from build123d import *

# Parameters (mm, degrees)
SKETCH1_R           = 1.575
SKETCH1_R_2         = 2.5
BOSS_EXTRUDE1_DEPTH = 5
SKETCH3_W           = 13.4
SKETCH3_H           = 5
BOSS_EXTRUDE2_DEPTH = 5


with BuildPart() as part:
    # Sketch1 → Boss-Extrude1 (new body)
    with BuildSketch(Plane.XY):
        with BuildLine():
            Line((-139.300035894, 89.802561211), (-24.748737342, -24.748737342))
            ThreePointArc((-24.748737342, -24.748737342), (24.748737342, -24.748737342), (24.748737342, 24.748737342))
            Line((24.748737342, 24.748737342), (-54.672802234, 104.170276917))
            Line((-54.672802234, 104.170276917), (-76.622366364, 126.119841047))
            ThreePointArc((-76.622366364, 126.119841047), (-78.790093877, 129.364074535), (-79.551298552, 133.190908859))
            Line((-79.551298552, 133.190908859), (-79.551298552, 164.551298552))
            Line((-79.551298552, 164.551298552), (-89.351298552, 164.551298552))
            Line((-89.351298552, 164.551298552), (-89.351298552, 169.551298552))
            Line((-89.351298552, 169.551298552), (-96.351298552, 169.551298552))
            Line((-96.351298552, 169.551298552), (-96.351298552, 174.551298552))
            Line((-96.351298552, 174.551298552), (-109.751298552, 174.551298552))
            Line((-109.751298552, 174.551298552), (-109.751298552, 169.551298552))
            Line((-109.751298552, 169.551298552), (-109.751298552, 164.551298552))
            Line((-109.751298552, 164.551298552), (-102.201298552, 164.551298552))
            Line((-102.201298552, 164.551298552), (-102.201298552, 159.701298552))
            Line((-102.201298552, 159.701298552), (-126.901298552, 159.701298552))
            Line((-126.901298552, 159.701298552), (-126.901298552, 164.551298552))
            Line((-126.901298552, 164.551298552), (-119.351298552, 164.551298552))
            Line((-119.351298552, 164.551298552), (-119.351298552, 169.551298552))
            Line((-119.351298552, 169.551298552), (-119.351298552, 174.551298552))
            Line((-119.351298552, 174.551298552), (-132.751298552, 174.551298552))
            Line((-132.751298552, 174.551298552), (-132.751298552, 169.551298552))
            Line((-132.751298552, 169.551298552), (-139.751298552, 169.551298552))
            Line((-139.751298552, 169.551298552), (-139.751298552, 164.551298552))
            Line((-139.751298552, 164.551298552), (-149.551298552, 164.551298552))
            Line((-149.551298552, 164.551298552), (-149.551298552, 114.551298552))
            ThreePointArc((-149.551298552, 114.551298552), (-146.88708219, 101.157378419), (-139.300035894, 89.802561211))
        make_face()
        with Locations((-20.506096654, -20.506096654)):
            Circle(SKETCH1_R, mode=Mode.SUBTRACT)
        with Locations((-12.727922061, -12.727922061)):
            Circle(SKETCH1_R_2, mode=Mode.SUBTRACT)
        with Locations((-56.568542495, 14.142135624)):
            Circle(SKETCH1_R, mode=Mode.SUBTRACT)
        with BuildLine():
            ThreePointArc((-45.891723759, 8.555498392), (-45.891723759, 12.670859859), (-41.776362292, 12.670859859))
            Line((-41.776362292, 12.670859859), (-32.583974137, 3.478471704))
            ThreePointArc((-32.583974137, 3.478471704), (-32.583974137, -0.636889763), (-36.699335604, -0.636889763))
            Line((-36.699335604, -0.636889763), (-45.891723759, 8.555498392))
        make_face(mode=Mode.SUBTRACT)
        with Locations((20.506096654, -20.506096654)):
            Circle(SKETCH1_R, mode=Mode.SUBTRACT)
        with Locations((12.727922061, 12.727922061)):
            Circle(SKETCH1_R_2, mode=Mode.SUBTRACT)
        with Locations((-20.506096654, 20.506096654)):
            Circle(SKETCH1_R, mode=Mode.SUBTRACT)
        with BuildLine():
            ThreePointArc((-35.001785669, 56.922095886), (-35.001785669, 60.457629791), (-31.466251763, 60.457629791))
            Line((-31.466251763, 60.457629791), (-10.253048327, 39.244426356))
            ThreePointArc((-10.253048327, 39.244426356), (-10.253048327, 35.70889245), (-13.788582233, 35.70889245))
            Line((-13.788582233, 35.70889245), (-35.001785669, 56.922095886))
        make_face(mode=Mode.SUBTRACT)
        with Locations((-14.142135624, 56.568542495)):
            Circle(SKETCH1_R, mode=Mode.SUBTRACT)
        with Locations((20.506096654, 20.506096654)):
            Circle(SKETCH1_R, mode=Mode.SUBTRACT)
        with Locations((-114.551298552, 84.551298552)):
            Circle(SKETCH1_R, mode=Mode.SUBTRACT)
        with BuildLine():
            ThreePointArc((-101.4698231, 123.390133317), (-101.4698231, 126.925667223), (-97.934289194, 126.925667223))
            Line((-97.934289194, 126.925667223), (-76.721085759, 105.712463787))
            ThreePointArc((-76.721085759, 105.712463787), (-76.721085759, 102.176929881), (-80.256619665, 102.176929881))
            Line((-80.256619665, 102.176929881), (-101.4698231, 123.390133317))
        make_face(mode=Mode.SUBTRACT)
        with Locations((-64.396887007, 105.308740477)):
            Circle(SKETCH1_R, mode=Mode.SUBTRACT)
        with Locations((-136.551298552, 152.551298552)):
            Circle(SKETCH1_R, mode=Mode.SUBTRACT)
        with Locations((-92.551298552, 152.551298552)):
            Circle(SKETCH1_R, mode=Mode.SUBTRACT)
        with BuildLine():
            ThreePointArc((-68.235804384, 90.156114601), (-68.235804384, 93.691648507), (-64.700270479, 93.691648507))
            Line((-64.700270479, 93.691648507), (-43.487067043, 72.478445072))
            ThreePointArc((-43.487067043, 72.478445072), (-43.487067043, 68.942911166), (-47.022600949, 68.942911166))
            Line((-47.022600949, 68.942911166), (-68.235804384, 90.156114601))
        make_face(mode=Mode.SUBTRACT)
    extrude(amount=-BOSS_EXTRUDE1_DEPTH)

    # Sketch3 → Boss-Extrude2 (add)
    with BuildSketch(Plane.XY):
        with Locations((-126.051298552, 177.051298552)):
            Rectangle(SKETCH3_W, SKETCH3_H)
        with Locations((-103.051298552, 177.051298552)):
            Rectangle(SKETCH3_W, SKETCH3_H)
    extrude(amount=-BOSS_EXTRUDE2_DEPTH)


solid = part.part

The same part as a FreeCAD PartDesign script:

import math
import FreeCAD as App
import Part
import Sketcher
from FreeCAD import Vector
Q = App.Units.Quantity


def add_polygon(sketch, points):
    """Adds a closed chain of lines whose ends are joined by coincident constraints."""
    first, n = sketch.GeometryCount, len(points)
    for a, b in zip(points, points[1:] + points[:1]):
        sketch.addGeometry(Part.LineSegment(App.Vector(*a, 0), App.Vector(*b, 0)), False)
    for i in range(n):
        sketch.addConstraint(Sketcher.Constraint("Coincident", first + i, 2, first + (i + 1) % n, 1))

doc = App.newDocument("Part")
body = doc.addObject("PartDesign::Body", "Body")

# Sketch on XY plane
sketch1 = body.newObject("Sketcher::SketchObject", "Sketch")
sketch1.AttachmentSupport = (doc.getObject("XY_Plane"), [""])
sketch1.MapMode = "FlatFace"
sketch1.addGeometry(Part.LineSegment(Vector(-139.300036, 89.802561, 0), Vector(-24.748737, -24.748737, 0)), False)
sketch1.addGeometry(Part.ArcOfCircle(Part.Circle(Vector(0, 0, 0), Vector(0, 0, 1), 35), math.radians(-135), math.radians(45)), False)
sketch1.addGeometry(Part.LineSegment(Vector(24.748737, 24.748737, 0), Vector(-54.672802, 104.170277, 0)), False)
sketch1.addGeometry(Part.LineSegment(Vector(-54.672802, 104.170277, 0), Vector(-76.622366, 126.119841, 0)), False)
sketch1.addGeometry(Part.ArcOfCircle(Part.Circle(Vector(-69.551299, 133.190909, 0), Vector(0, 0, 1), 10), math.radians(180), math.radians(225)), False)
sketch1.addGeometry(Part.LineSegment(Vector(-79.551299, 133.190909, 0), Vector(-79.551299, 164.551299, 0)), False)
sketch1.addGeometry(Part.LineSegment(Vector(-79.551299, 164.551299, 0), Vector(-89.351299, 164.551299, 0)), False)
sketch1.addGeometry(Part.LineSegment(Vector(-89.351299, 164.551299, 0), Vector(-89.351299, 169.551299, 0)), False)
sketch1.addGeometry(Part.LineSegment(Vector(-89.351299, 169.551299, 0), Vector(-96.351299, 169.551299, 0)), False)
sketch1.addGeometry(Part.LineSegment(Vector(-96.351299, 169.551299, 0), Vector(-96.351299, 174.551299, 0)), False)
sketch1.addGeometry(Part.LineSegment(Vector(-96.351299, 174.551299, 0), Vector(-109.751299, 174.551299, 0)), False)
sketch1.addGeometry(Part.LineSegment(Vector(-109.751299, 174.551299, 0), Vector(-109.751299, 164.551299, 0)), False)
sketch1.addGeometry(Part.LineSegment(Vector(-109.751299, 164.551299, 0), Vector(-102.201299, 164.551299, 0)), False)
sketch1.addGeometry(Part.LineSegment(Vector(-102.201299, 164.551299, 0), Vector(-102.201299, 159.701299, 0)), False)
sketch1.addGeometry(Part.LineSegment(Vector(-102.201299, 159.701299, 0), Vector(-126.901299, 159.701299, 0)), False)
sketch1.addGeometry(Part.LineSegment(Vector(-126.901299, 159.701299, 0), Vector(-126.901299, 164.551299, 0)), False)
sketch1.addGeometry(Part.LineSegment(Vector(-126.901299, 164.551299, 0), Vector(-119.351299, 164.551299, 0)), False)
sketch1.addGeometry(Part.LineSegment(Vector(-119.351299, 164.551299, 0), Vector(-119.351299, 174.551299, 0)), False)
sketch1.addGeometry(Part.LineSegment(Vector(-119.351299, 174.551299, 0), Vector(-132.751299, 174.551299, 0)), False)
sketch1.addGeometry(Part.LineSegment(Vector(-132.751299, 174.551299, 0), Vector(-132.751299, 169.551299, 0)), False)
sketch1.addGeometry(Part.LineSegment(Vector(-132.751299, 169.551299, 0), Vector(-139.751299, 169.551299, 0)), False)
sketch1.addGeometry(Part.LineSegment(Vector(-139.751299, 169.551299, 0), Vector(-139.751299, 164.551299, 0)), False)
sketch1.addGeometry(Part.LineSegment(Vector(-139.751299, 164.551299, 0), Vector(-149.551299, 164.551299, 0)), False)
sketch1.addGeometry(Part.LineSegment(Vector(-149.551299, 164.551299, 0), Vector(-149.551299, 114.551299, 0)), False)
sketch1.addGeometry(Part.ArcOfCircle(Part.Circle(Vector(-114.551299, 114.551299, 0), Vector(0, 0, 1), 35), math.radians(180), math.radians(225)), False)
sketch1.addGeometry(Part.Circle(Vector(-20.506097, -20.506097, 0), Vector(0, 0, 1), 1.575), False)
sketch1.addGeometry(Part.LineSegment(Vector(-36.699336, -0.63689, 0), Vector(-45.891724, 8.555498, 0)), False)
sketch1.addGeometry(Part.ArcOfCircle(Part.Circle(Vector(-43.834043, 10.613179, 0), Vector(0, 0, 1), 2.91), math.radians(45), math.radians(225)), False)
sketch1.addGeometry(Part.LineSegment(Vector(-41.776362, 12.67086, 0), Vector(-32.583974, 3.478472, 0)), False)
sketch1.addGeometry(Part.ArcOfCircle(Part.Circle(Vector(-34.641655, 1.420791, 0), Vector(0, 0, 1), 2.91), math.radians(-135), math.radians(45)), False)
sketch1.addGeometry(Part.Circle(Vector(-56.568542, 14.142136, 0), Vector(0, 0, 1), 1.575), False)
sketch1.addGeometry(Part.Circle(Vector(-20.506097, 20.506097, 0), Vector(0, 0, 1), 1.575), False)
sketch1.addGeometry(Part.Circle(Vector(-12.727922, -12.727922, 0), Vector(0, 0, 1), 2.5), False)
sketch1.addGeometry(Part.Circle(Vector(20.506097, -20.506097, 0), Vector(0, 0, 1), 1.575), False)
sketch1.addGeometry(Part.Circle(Vector(12.727922, 12.727922, 0), Vector(0, 0, 1), 2.5), False)
sketch1.addGeometry(Part.Circle(Vector(20.506097, 20.506097, 0), Vector(0, 0, 1), 1.575), False)
sketch1.addGeometry(Part.LineSegment(Vector(-13.788582, 35.708892, 0), Vector(-35.001786, 56.922096, 0)), False)
sketch1.addGeometry(Part.ArcOfCircle(Part.Circle(Vector(-33.234019, 58.689863, 0), Vector(0, 0, 1), 2.5), math.radians(45), math.radians(225)), False)
sketch1.addGeometry(Part.LineSegment(Vector(-31.466252, 60.45763, 0), Vector(-10.253048, 39.244426, 0)), False)
sketch1.addGeometry(Part.ArcOfCircle(Part.Circle(Vector(-12.020815, 37.476659, 0), Vector(0, 0, 1), 2.5), math.radians(-135), math.radians(45)), False)
sketch1.addGeometry(Part.Circle(Vector(-14.142136, 56.568542, 0), Vector(0, 0, 1), 1.575), False)
sketch1.addGeometry(Part.Circle(Vector(-114.551299, 84.551299, 0), Vector(0, 0, 1), 1.575), False)
sketch1.addGeometry(Part.Circle(Vector(-64.396887, 105.30874, 0), Vector(0, 0, 1), 1.575), False)
sketch1.addGeometry(Part.Circle(Vector(-136.551299, 152.551299, 0), Vector(0, 0, 1), 1.575), False)
sketch1.addGeometry(Part.LineSegment(Vector(-80.25662, 102.17693, 0), Vector(-101.469823, 123.390133, 0)), False)
sketch1.addGeometry(Part.ArcOfCircle(Part.Circle(Vector(-99.702056, 125.1579, 0), Vector(0, 0, 1), 2.5), math.radians(45), math.radians(225)), False)
sketch1.addGeometry(Part.LineSegment(Vector(-97.934289, 126.925667, 0), Vector(-76.721086, 105.712464, 0)), False)
sketch1.addGeometry(Part.ArcOfCircle(Part.Circle(Vector(-78.488853, 103.944697, 0), Vector(0, 0, 1), 2.5), math.radians(-135), math.radians(45)), False)
sketch1.addGeometry(Part.Circle(Vector(-92.551299, 152.551299, 0), Vector(0, 0, 1), 1.575), False)
sketch1.addGeometry(Part.LineSegment(Vector(-47.022601, 68.942911, 0), Vector(-68.235804, 90.156115, 0)), False)
sketch1.addGeometry(Part.ArcOfCircle(Part.Circle(Vector(-66.468037, 91.923882, 0), Vector(0, 0, 1), 2.5), math.radians(45), math.radians(225)), False)
sketch1.addGeometry(Part.LineSegment(Vector(-64.70027, 93.691649, 0), Vector(-43.487067, 72.478445, 0)), False)
sketch1.addGeometry(Part.ArcOfCircle(Part.Circle(Vector(-45.254834, 70.710678, 0), Vector(0, 0, 1), 2.5), math.radians(-135), math.radians(45)), False)
sketch1.addConstraint(Sketcher.Constraint("Tangent", 0, 2, 1, 1))
sketch1.addConstraint(Sketcher.Constraint("Tangent", 1, 2, 2, 1))
sketch1.addConstraint(Sketcher.Constraint("Coincident", 2, 2, 3, 1))
sketch1.addConstraint(Sketcher.Constraint("Tangent", 3, 2, 4, 2))
sketch1.addConstraint(Sketcher.Constraint("Tangent", 4, 1, 5, 1))
sketch1.addConstraint(Sketcher.Constraint("Coincident", 5, 2, 6, 1))
sketch1.addConstraint(Sketcher.Constraint("Coincident", 6, 2, 7, 1))
sketch1.addConstraint(Sketcher.Constraint("Coincident", 7, 2, 8, 1))
sketch1.addConstraint(Sketcher.Constraint("Coincident", 8, 2, 9, 1))
sketch1.addConstraint(Sketcher.Constraint("Coincident", 9, 2, 10, 1))
sketch1.addConstraint(Sketcher.Constraint("Coincident", 10, 2, 11, 1))
sketch1.addConstraint(Sketcher.Constraint("Coincident", 11, 2, 12, 1))
sketch1.addConstraint(Sketcher.Constraint("Coincident", 12, 2, 13, 1))
sketch1.addConstraint(Sketcher.Constraint("Coincident", 13, 2, 14, 1))
sketch1.addConstraint(Sketcher.Constraint("Coincident", 14, 2, 15, 1))
sketch1.addConstraint(Sketcher.Constraint("Coincident", 15, 2, 16, 1))
sketch1.addConstraint(Sketcher.Constraint("Coincident", 16, 2, 17, 1))
sketch1.addConstraint(Sketcher.Constraint("Coincident", 17, 2, 18, 1))
sketch1.addConstraint(Sketcher.Constraint("Coincident", 18, 2, 19, 1))
sketch1.addConstraint(Sketcher.Constraint("Coincident", 19, 2, 20, 1))
sketch1.addConstraint(Sketcher.Constraint("Coincident", 20, 2, 21, 1))
sketch1.addConstraint(Sketcher.Constraint("Coincident", 21, 2, 22, 1))
sketch1.addConstraint(Sketcher.Constraint("Coincident", 22, 2, 23, 1))
sketch1.addConstraint(Sketcher.Constraint("Tangent", 23, 2, 24, 1))
sketch1.addConstraint(Sketcher.Constraint("Tangent", 24, 2, 0, 1))
sketch1.addConstraint(Sketcher.Constraint("Tangent", 26, 2, 27, 2))
sketch1.addConstraint(Sketcher.Constraint("Tangent", 27, 1, 28, 1))
sketch1.addConstraint(Sketcher.Constraint("Tangent", 28, 2, 29, 2))
sketch1.addConstraint(Sketcher.Constraint("Tangent", 29, 1, 26, 1))
sketch1.addConstraint(Sketcher.Constraint("Tangent", 36, 2, 37, 2))
sketch1.addConstraint(Sketcher.Constraint("Tangent", 37, 1, 38, 1))
sketch1.addConstraint(Sketcher.Constraint("Tangent", 38, 2, 39, 2))
sketch1.addConstraint(Sketcher.Constraint("Tangent", 39, 1, 36, 1))
sketch1.addConstraint(Sketcher.Constraint("Tangent", 44, 2, 45, 2))
sketch1.addConstraint(Sketcher.Constraint("Tangent", 45, 1, 46, 1))
sketch1.addConstraint(Sketcher.Constraint("Tangent", 46, 2, 47, 2))
sketch1.addConstraint(Sketcher.Constraint("Tangent", 47, 1, 44, 1))
sketch1.addConstraint(Sketcher.Constraint("Tangent", 49, 2, 50, 2))
sketch1.addConstraint(Sketcher.Constraint("Tangent", 50, 1, 51, 1))
sketch1.addConstraint(Sketcher.Constraint("Tangent", 51, 2, 52, 2))
sketch1.addConstraint(Sketcher.Constraint("Tangent", 52, 1, 49, 1))
sketch1.addConstraint(Sketcher.Constraint("Vertical", 5))
sketch1.addConstraint(Sketcher.Constraint("Horizontal", 6))
sketch1.addConstraint(Sketcher.Constraint("Vertical", 7))
sketch1.addConstraint(Sketcher.Constraint("Horizontal", 8))
sketch1.addConstraint(Sketcher.Constraint("Vertical", 9))
sketch1.addConstraint(Sketcher.Constraint("Horizontal", 10))
sketch1.addConstraint(Sketcher.Constraint("Vertical", 11))
sketch1.addConstraint(Sketcher.Constraint("Horizontal", 12))
sketch1.addConstraint(Sketcher.Constraint("Vertical", 13))
sketch1.addConstraint(Sketcher.Constraint("Horizontal", 14))
sketch1.addConstraint(Sketcher.Constraint("Vertical", 15))
sketch1.addConstraint(Sketcher.Constraint("Horizontal", 16))
sketch1.addConstraint(Sketcher.Constraint("Vertical", 17))
sketch1.addConstraint(Sketcher.Constraint("Horizontal", 18))
sketch1.addConstraint(Sketcher.Constraint("Vertical", 19))
sketch1.addConstraint(Sketcher.Constraint("Horizontal", 20))
sketch1.addConstraint(Sketcher.Constraint("Vertical", 21))
sketch1.addConstraint(Sketcher.Constraint("Horizontal", 22))
sketch1.addConstraint(Sketcher.Constraint("Vertical", 23))
sketch1.addConstraint(Sketcher.Constraint("Coincident", 1, 3, -1, 1))
sketch1.addConstraint(Sketcher.Constraint("Equal", 1, 24))
sketch1.addConstraint(Sketcher.Constraint("Equal", 27, 29))
sketch1.addConstraint(Sketcher.Constraint("Equal", 25, 30))
sketch1.addConstraint(Sketcher.Constraint("Equal", 30, 31))
sketch1.addConstraint(Sketcher.Constraint("Equal", 31, 33))
sketch1.addConstraint(Sketcher.Constraint("Equal", 32, 34))
sketch1.addConstraint(Sketcher.Constraint("Equal", 33, 35))
sketch1.addConstraint(Sketcher.Constraint("Equal", 34, 37))
sketch1.addConstraint(Sketcher.Constraint("Equal", 37, 39))
sketch1.addConstraint(Sketcher.Constraint("Equal", 35, 40))
sketch1.addConstraint(Sketcher.Constraint("Equal", 40, 41))
sketch1.addConstraint(Sketcher.Constraint("Equal", 41, 42))
sketch1.addConstraint(Sketcher.Constraint("Equal", 42, 43))
sketch1.addConstraint(Sketcher.Constraint("Equal", 39, 45))
sketch1.addConstraint(Sketcher.Constraint("Equal", 45, 47))
sketch1.addConstraint(Sketcher.Constraint("Equal", 43, 48))
sketch1.addConstraint(Sketcher.Constraint("Equal", 47, 50))
sketch1.addConstraint(Sketcher.Constraint("Equal", 50, 52))
sketch1.addConstraint(Sketcher.Constraint("Symmetric", 31, 3, 33, 3, -1, 1))
sketch1.addConstraint(Sketcher.Constraint("Symmetric", 32, 3, 34, 3, -1, 1))
sketch1.addConstraint(Sketcher.Constraint("Symmetric", 25, 3, 35, 3, -1, 1))
sketch1.addConstraint(Sketcher.Constraint("Symmetric", 25, 3, 33, 3, -2))
sketch1.addConstraint(Sketcher.Constraint("Parallel", 0, 2))
sketch1.addConstraint(Sketcher.Constraint("Parallel", 2, 3))
sketch1.addConstraint(Sketcher.Constraint("Parallel", 3, 26))
sketch1.addConstraint(Sketcher.Constraint("Parallel", 28, 36))
sketch1.addConstraint(Sketcher.Constraint("Parallel", 38, 44))
sketch1.addConstraint(Sketcher.Constraint("Parallel", 46, 49))
sketch1.addConstraint(Sketcher.Constraint("Horizontal", 43, 3, 48, 3))
sketch1.addConstraint(Sketcher.Constraint("Horizontal", 6, 2, 11, 2))
sketch1.addConstraint(Sketcher.Constraint("Horizontal", 12, 2, 15, 2))
sketch1.addConstraint(Sketcher.Constraint("Horizontal", 10, 2, 17, 2))
sketch1.addConstraint(Sketcher.Constraint("Horizontal", 8, 2, 19, 2))
sketch1.addConstraint(Sketcher.Constraint("Horizontal", 16, 2, 21, 2))
sketch1.addConstraint(Sketcher.Constraint("Vertical", 24, 3, 41, 3))
sketch1.addConstraint(Sketcher.Constraint("Equal", 12, 16))
sketch1.addConstraint(Sketcher.Constraint("Equal", 10, 18))
sketch1.addConstraint(Sketcher.Constraint("Equal", 8, 20))
sketch1.addConstraint(Sketcher.Constraint("Equal", 6, 22))
sketch1.addConstraint(Sketcher.Constraint("Equal", 7, 9))
sketch1.addConstraint(Sketcher.Constraint("Equal", 38, 44))
sketch1.addConstraint(Sketcher.Constraint("Equal", 46, 49))
sketch1.addConstraint(Sketcher.Constraint("Diameter", 32, 5.0))
sketch1.addConstraint(Sketcher.Constraint("Radius", 1, 35.0))
sketch1.addConstraint(Sketcher.Constraint("Radius", 4, 10.0))
sketch1.addConstraint(Sketcher.Constraint("Diameter", 25, 3.15))
sketch1.addConstraint(Sketcher.Constraint("DistanceX", 8, 2, 8, 1, 7.0))
sketch1.addConstraint(Sketcher.Constraint("DistanceY", 7, 1, 7, 2, 5.0))
sketch1.addConstraint(Sketcher.Constraint("DistanceY", 23, 2, 23, 1, 50.0))
sketch1.addConstraint(Sketcher.Constraint("Angle", 0, Q("-45 deg")))
sketch1.addConstraint(Sketcher.Constraint("Radius", 27, 2.91))
sketch1.addConstraint(Sketcher.Constraint("Distance", 0, 162.0))
sketch1.addConstraint(Sketcher.Constraint("Distance", 26, 13.0))
sketch1.addConstraint(Sketcher.Constraint("Distance", 36, 30.0))
sketch1.addConstraint(Sketcher.Constraint("DistanceX", 6, 2, 6, 1, 9.8))
sketch1.addConstraint(Sketcher.Constraint("DistanceX", 10, 2, 10, 1, 13.4))
sketch1.addConstraint(Sketcher.Constraint("DistanceX", 14, 2, 14, 1, 24.7))
sketch1.addConstraint(Sketcher.Constraint("DistanceX", 12, 1, 12, 2, 7.55))
sketch1.addConstraint(Sketcher.Constraint("DistanceY", 13, 2, 13, 1, 4.85))
sketch1.addConstraint(Sketcher.Constraint("DistanceY", -1, 1, 41, 3, 84.551299))
sketch1.addConstraint(Sketcher.Constraint("DistanceX", 43, 3, -1, 1, 136.551299))
sketch1.addConstraint(Sketcher.Constraint("DistanceY", -1, 1, 43, 3, 152.551299))
sketch1.addConstraint(Sketcher.Constraint("DistanceY", -1, 1, 45, 3, 125.1579))
sketch1.addConstraint(Sketcher.Constraint("DistanceX", 48, 3, -1, 1, 92.551299))
sketch1.addConstraint(Sketcher.Constraint("DistanceY", -1, 1, 26, 2, 8.555498))
sketch1.addConstraint(Sketcher.Constraint("DistanceX", 52, 1, -1, 1, 47.022601))
sketch1.addConstraint(Sketcher.Constraint("Distance", 2, 112.319018))
sketch1.addConstraint(Sketcher.Constraint("DistanceX", 37, 3, -1, 1, 33.234019))
sketch1.addConstraint(Sketcher.Constraint("DistanceY", -1, 1, 39, 3, 37.476659))
sketch1.addConstraint(Sketcher.Constraint("DistanceY", -1, 1, 42, 3, 105.30874))
sketch1.addConstraint(Sketcher.Constraint("DistanceY", -1, 1, 50, 3, 91.923882))
sketch1.addConstraint(Sketcher.Constraint("DistanceX", 45, 1, -1, 1, 97.934289))
sketch1.addConstraint(Sketcher.Constraint("DistanceX", 25, 3, -1, 1, 20.506097))
sketch1.addConstraint(Sketcher.Constraint("DistanceY", 25, 3, -1, 1, 20.506097))
sketch1.addConstraint(Sketcher.Constraint("DistanceX", 27, 3, -1, 1, 43.834043))
sketch1.addConstraint(Sketcher.Constraint("DistanceX", 30, 3, -1, 1, 56.568542))
sketch1.addConstraint(Sketcher.Constraint("DistanceY", -1, 1, 30, 3, 14.142136))
sketch1.addConstraint(Sketcher.Constraint("DistanceX", 32, 3, -1, 1, 12.727922))
sketch1.addConstraint(Sketcher.Constraint("DistanceY", 32, 3, -1, 1, 12.727922))
sketch1.addConstraint(Sketcher.Constraint("DistanceX", 40, 3, -1, 1, 14.142136))
sketch1.addConstraint(Sketcher.Constraint("DistanceY", -1, 1, 40, 3, 56.568542))
sketch1.addConstraint(Sketcher.Constraint("DistanceX", 42, 3, -1, 1, 64.396887))
pad1 = body.newObject("PartDesign::Pad", "Pad")
pad1.Profile = sketch1
pad1.Length = 5
pad1.Reversed = True

# Sketch on XY plane
sketch2 = body.newObject("Sketcher::SketchObject", "Sketch001")
sketch2.AttachmentSupport = (doc.getObject("XY_Plane"), [""])
sketch2.MapMode = "FlatFace"
add_polygon(sketch2, [(-132.751299, 179.551299), (-132.751299, 174.551299), (-119.351299, 174.551299), (-119.351299, 179.551299)])  # lines 0-3
add_polygon(sketch2, [(-109.751299, 179.551299), (-109.751299, 174.551299), (-96.351299, 174.551299), (-96.351299, 179.551299)])  # lines 4-7
sketch2.addConstraint(Sketcher.Constraint("Vertical", 0))
sketch2.addConstraint(Sketcher.Constraint("Horizontal", 1))
sketch2.addConstraint(Sketcher.Constraint("Vertical", 2))
sketch2.addConstraint(Sketcher.Constraint("Horizontal", 3))
sketch2.addConstraint(Sketcher.Constraint("Vertical", 4))
sketch2.addConstraint(Sketcher.Constraint("Horizontal", 5))
sketch2.addConstraint(Sketcher.Constraint("Vertical", 6))
sketch2.addConstraint(Sketcher.Constraint("Horizontal", 7))
sketch2.addConstraint(Sketcher.Constraint("Horizontal", 1, 2, 4, 2))
sketch2.addConstraint(Sketcher.Constraint("Horizontal", 3, 2, 6, 2))
sketch2.addConstraint(Sketcher.Constraint("Equal", 3, 5))
sketch2.addConstraint(Sketcher.Constraint("DistanceY", 0, 2, 0, 1, 5.0))
sketch2.addConstraint(Sketcher.Constraint("DistanceX", 1, 1, 1, 2, 13.4))
sketch2.addConstraint(Sketcher.Constraint("DistanceX", 0, 2, 4, 2, 23.0))
sketch2.addConstraint(Sketcher.Constraint("DistanceX", 0, 2, -1, 1, 132.751299))
sketch2.addConstraint(Sketcher.Constraint("DistanceY", -1, 1, 0, 2, 174.551299))
pad2 = body.newObject("PartDesign::Pad", "Pad001")
pad2.Profile = sketch2
pad2.Length = 5
pad2.Reversed = True

doc.recompute()
